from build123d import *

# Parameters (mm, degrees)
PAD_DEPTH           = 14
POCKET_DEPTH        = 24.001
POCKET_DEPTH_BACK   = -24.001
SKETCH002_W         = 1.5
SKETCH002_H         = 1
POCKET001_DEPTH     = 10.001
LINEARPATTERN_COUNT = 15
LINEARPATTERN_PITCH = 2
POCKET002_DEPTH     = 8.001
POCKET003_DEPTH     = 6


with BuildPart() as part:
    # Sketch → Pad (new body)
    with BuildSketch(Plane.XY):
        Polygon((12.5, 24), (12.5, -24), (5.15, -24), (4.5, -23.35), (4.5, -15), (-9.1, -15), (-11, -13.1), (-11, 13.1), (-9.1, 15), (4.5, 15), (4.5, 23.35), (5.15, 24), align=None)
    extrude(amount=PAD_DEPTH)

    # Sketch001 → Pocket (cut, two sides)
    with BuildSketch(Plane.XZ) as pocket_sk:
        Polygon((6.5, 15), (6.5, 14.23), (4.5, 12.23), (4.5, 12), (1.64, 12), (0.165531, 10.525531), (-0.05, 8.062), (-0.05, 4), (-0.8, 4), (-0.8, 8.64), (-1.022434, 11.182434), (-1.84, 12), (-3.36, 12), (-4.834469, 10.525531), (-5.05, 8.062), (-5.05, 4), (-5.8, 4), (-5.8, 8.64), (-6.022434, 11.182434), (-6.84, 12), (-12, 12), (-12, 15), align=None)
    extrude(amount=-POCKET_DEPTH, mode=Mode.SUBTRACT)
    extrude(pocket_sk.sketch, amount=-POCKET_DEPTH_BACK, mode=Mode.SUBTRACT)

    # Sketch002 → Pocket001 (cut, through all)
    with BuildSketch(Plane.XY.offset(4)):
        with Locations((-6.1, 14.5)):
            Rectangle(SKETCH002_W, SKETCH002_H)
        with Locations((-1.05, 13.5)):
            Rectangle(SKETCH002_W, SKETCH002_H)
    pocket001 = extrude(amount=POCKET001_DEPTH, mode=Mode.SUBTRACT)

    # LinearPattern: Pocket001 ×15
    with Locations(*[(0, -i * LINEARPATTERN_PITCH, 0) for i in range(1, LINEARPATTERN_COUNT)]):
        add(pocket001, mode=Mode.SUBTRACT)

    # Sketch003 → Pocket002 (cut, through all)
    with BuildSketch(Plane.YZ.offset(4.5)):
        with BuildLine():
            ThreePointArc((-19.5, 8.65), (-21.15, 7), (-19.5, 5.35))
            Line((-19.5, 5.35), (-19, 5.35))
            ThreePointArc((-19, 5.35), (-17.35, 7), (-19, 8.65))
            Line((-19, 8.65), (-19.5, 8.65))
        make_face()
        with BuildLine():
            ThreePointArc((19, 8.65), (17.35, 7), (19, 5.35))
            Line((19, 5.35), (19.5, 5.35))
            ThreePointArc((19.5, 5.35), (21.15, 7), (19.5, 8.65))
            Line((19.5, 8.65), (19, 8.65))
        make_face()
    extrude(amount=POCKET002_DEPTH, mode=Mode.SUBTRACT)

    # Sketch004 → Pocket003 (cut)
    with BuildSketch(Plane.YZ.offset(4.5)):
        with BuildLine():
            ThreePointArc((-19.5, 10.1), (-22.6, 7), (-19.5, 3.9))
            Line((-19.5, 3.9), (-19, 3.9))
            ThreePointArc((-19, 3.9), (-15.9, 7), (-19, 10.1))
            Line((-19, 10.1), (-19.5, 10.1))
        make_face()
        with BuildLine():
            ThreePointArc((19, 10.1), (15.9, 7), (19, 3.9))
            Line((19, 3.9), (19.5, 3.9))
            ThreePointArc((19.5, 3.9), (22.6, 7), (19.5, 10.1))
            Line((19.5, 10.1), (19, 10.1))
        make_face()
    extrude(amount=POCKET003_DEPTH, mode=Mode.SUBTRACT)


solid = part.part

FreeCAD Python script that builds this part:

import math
import FreeCAD as App
import Part
import Sketcher
from FreeCAD import Vector
Q = App.Units.Quantity

doc = App.newDocument("Part")
body = doc.addObject("PartDesign::Body", "Body")

# Sketch on XY plane
sketch1 = body.newObject("Sketcher::SketchObject", "Sketch")
sketch1.AttachmentSupport = (doc.getObject("XY_Plane"), [""])
sketch1.MapMode = "FlatFace"
sketch1.addGeometry([
    Part.LineSegment(Vector(12.5, -24, 0), Vector(12.5, 24, 0)),  # 0
    Part.LineSegment(Vector(12.5, 24, 0), Vector(5.2, 24, 0)),  # 1
    Part.LineSegment(Vector(5.2, 24, 0), Vector(4.5, 23.4, 0)),  # 2
    Part.LineSegment(Vector(4.5, 23.4, 0), Vector(4.5, 15, 0)),  # 3
    Part.LineSegment(Vector(4.5, 15, 0), Vector(-9.1, 15, 0)),  # 4
    Part.LineSegment(Vector(-9.1, 15, 0), Vector(-11, 13.1, 0)),  # 5
    Part.LineSegment(Vector(-11, 13.1, 0), Vector(-11, -13.1, 0)),  # 6
    Part.LineSegment(Vector(-11, -13.1, 0), Vector(-9.1, -15, 0)),  # 7
    Part.LineSegment(Vector(-9.1, -15, 0), Vector(4.5, -15, 0)),  # 8
    Part.LineSegment(Vector(4.5, -15, 0), Vector(4.5, -23.4, 0)),  # 9
    Part.LineSegment(Vector(4.5, -23.4, 0), Vector(5.2, -24, 0)),  # 10
    Part.LineSegment(Vector(5.2, -24, 0), Vector(12.5, -24, 0)),  # 11
], False)
sketch1.addConstraint([
    Sketcher.Constraint("Coincident", 0, 2, 1, 1),
    Sketcher.Constraint("Coincident", 1, 2, 2, 1),
    Sketcher.Constraint("Coincident", 2, 2, 3, 1),
    Sketcher.Constraint("Coincident", 3, 2, 4, 1),
    Sketcher.Constraint("Coincident", 4, 2, 5, 1),
    Sketcher.Constraint("Coincident", 5, 2, 6, 1),
    Sketcher.Constraint("Coincident", 6, 2, 7, 1),
    Sketcher.Constraint("Coincident", 7, 2, 8, 1),
    Sketcher.Constraint("Coincident", 8, 2, 9, 1),
    Sketcher.Constraint("Coincident", 9, 2, 10, 1),
    Sketcher.Constraint("Coincident", 10, 2, 11, 1),
    Sketcher.Constraint("Coincident", 11, 2, 0, 1),
    Sketcher.Constraint("Vertical", 0),
    Sketcher.Constraint("Horizontal", 1),
    Sketcher.Constraint("Vertical", 3),
    Sketcher.Constraint("Horizontal", 4),
    Sketcher.Constraint("Vertical", 6),
    Sketcher.Constraint("Horizontal", 8),
    Sketcher.Constraint("Vertical", 9),
    Sketcher.Constraint("Horizontal", 11),
    Sketcher.Constraint("Symmetric", 4, 2, 7, 2, -1),
    Sketcher.Constraint("Symmetric", 2, 2, 9, 2, -1),
    Sketcher.Constraint("Symmetric", 1, 2, 10, 2, -1),
    Sketcher.Constraint("Parallel", 2, 5),
    Sketcher.Constraint("Perpendicular", 5, 7),
    Sketcher.Constraint("Parallel", 7, 10),
    Sketcher.Constraint("DistanceY", 0, 1, 0, 2, 48.0),
    Sketcher.Constraint("DistanceX", 4, 2, 4, 1, 13.6),
    Sketcher.Constraint("DistanceY", 6, 2, 6, 1, 26.2),
    Sketcher.Constraint("DistanceY", -1, 1, 3, 2, 15.0),
    Sketcher.Constraint("DistanceX", 5, 2, -1, 1, 11.0),
    Sketcher.Constraint("DistanceX", 2, 2, 0, 2, 8.0),
    Sketcher.Constraint("DistanceX", 1, 2, 1, 1, 7.35),
])
pad1 = body.newObject("PartDesign::Pad", "Pad")
pad1.Profile = sketch1
pad1.Length = 14

# Sketch on XZ plane
sketch2 = body.newObject("Sketcher::SketchObject", "Sketch001")
sketch2.AttachmentSupport = (doc.getObject("XZ_Plane"), [""])
sketch2.MapMode = "FlatFace"
sketch2.addGeometry([
    Part.LineSegment(Vector(6.5, 14.23, 0), Vector(6.5, 15, 0)),  # 0
    Part.LineSegment(Vector(6.5, 15, 0), Vector(-12, 15, 0)),  # 1
    Part.LineSegment(Vector(-12, 15, 0), Vector(-12, 12, 0)),  # 2
    Part.LineSegment(Vector(-12, 12, 0), Vector(-6.84, 12, 0)),  # 3
    Part.LineSegment(Vector(-6.84, 12, 0), Vector(-6.02, 11.18, 0)),  # 4
    Part.LineSegment(Vector(-6.02, 11.18, 0), Vector(-5.8, 8.64, 0)),  # 5
    Part.LineSegment(Vector(-5.8, 8.64, 0), Vector(-5.8, 4, 0)),  # 6
    Part.LineSegment(Vector(-5.8, 4, 0), Vector(-5.05, 4, 0)),  # 7
    Part.LineSegment(Vector(-5.05, 4, 0), Vector(-5.05, 8.06, 0)),  # 8
    Part.LineSegment(Vector(-5.05, 8.06, 0), Vector(-4.83, 10.53, 0)),  # 9
    Part.LineSegment(Vector(-4.83, 10.53, 0), Vector(-3.36, 12, 0)),  # 10
    Part.LineSegment(Vector(-3.36, 12, 0), Vector(-1.84, 12, 0)),  # 11
    Part.LineSegment(Vector(-1.84, 12, 0), Vector(-1.02, 11.18, 0)),  # 12
    Part.LineSegment(Vector(-1.02, 11.18, 0), Vector(-0.8, 8.64, 0)),  # 13
    Part.LineSegment(Vector(-0.8, 8.64, 0), Vector(-0.8, 4, 0)),  # 14
    Part.LineSegment(Vector(-0.8, 4, 0), Vector(-0.05, 4, 0)),  # 15
    Part.LineSegment(Vector(-0.05, 4, 0), Vector(-0.05, 8.06, 0)),  # 16
    Part.LineSegment(Vector(-0.05, 8.06, 0), Vector(0.17, 10.53, 0)),  # 17
    Part.LineSegment(Vector(0.17, 10.53, 0), Vector(1.64, 12, 0)),  # 18
    Part.LineSegment(Vector(1.64, 12, 0), Vector(4.5, 12, 0)),  # 19
    Part.LineSegment(Vector(4.5, 12, 0), Vector(4.5, 12.23, 0)),  # 20
    Part.LineSegment(Vector(4.5, 12.23, 0), Vector(6.5, 14.23, 0)),  # 21
], False)
sketch2.addConstraint([
    Sketcher.Constraint("Coincident", 0, 2, 1, 1),
    Sketcher.Constraint("Coincident", 1, 2, 2, 1),
    Sketcher.Constraint("Coincident", 2, 2, 3, 1),
    Sketcher.Constraint("Coincident", 3, 2, 4, 1),
    Sketcher.Constraint("Coincident", 4, 2, 5, 1),
    Sketcher.Constraint("Coincident", 5, 2, 6, 1),
    Sketcher.Constraint("Coincident", 6, 2, 7, 1),
    Sketcher.Constraint("Coincident", 7, 2, 8, 1),
    Sketcher.Constraint("Coincident", 8, 2, 9, 1),
    Sketcher.Constraint("Coincident", 9, 2, 10, 1),
    Sketcher.Constraint("Coincident", 10, 2, 11, 1),
    Sketcher.Constraint("Coincident", 11, 2, 12, 1),
    Sketcher.Constraint("Coincident", 12, 2, 13, 1),
    Sketcher.Constraint("Coincident", 13, 2, 14, 1),
    Sketcher.Constraint("Coincident", 14, 2, 15, 1),
    Sketcher.Constraint("Coincident", 15, 2, 16, 1),
    Sketcher.Constraint("Coincident", 16, 2, 17, 1),
    Sketcher.Constraint("Coincident", 17, 2, 18, 1),
    Sketcher.Constraint("Coincident", 18, 2, 19, 1),
    Sketcher.Constraint("Coincident", 19, 2, 20, 1),
    Sketcher.Constraint("Coincident", 20, 2, 21, 1),
    Sketcher.Constraint("Coincident", 21, 2, 0, 1),
    Sketcher.Constraint("Vertical", 0),
    Sketcher.Constraint("Horizontal", 1),
    Sketcher.Constraint("Vertical", 2),
    Sketcher.Constraint("Horizontal", 3),
    Sketcher.Constraint("Vertical", 6),
    Sketcher.Constraint("Horizontal", 7),
    Sketcher.Constraint("Vertical", 8),
    Sketcher.Constraint("Horizontal", 11),
    Sketcher.Constraint("Vertical", 14),
    Sketcher.Constraint("Horizontal", 15),
    Sketcher.Constraint("Vertical", 16),
    Sketcher.Constraint("Horizontal", 19),
    Sketcher.Constraint("Vertical", 20),
    Sketcher.Constraint("Perpendicular", 4, 10),
    Sketcher.Constraint("Perpendicular", 10, 12),
    Sketcher.Constraint("Parallel", 5, 13),
    Sketcher.Constraint("Parallel", 9, 17),
    Sketcher.Constraint("Perpendicular", 12, 18),
    Sketcher.Constraint("Parallel", 18, 21),
    Sketcher.Constraint("Horizontal", 3, 2, 10, 2),
    Sketcher.Constraint("Horizontal", 4, 2, 12, 2),
    Sketcher.Constraint("Horizontal", 5, 2, 13, 2),
    Sketcher.Constraint("Horizontal", 7, 2, 14, 2),
    Sketcher.Constraint("Horizontal", 8, 2, 16, 2),
    Sketcher.Constraint("Horizontal", 9, 2, 17, 2),
    Sketcher.Constraint("Horizontal", 11, 2, 18, 2),
    Sketcher.Constraint("Equal", 7, 15),
    Sketcher.Constraint("DistanceY", 2, 2, 2, 1, 3.0),
    Sketcher.Constraint("Angle", 4, Q("-45 deg")),
    Sketcher.Constraint("Angle", 5, Q("-85.000003 deg")),
    Sketcher.Constraint("Angle", 9, Q("85.000001 deg")),
    Sketcher.Constraint("DistanceX", 1, 2, 1, 1, 18.5),
    Sketcher.Constraint("DistanceY", -1, 1, 0, 2, 15.0),
    Sketcher.Constraint("DistanceX", 1, 2, -1, 1, 12.0),
    Sketcher.Constraint("DistanceY", -1, 1, 6, 2, 4.0),
    Sketcher.Constraint("DistanceX", 3, 2, 11, 2, 5.0),
    Sketcher.Constraint("DistanceX", 19, 2, 0, 2, 2.0),
    Sketcher.Constraint("DistanceX", 3, 1, 3, 2, 5.16),
    Sketcher.Constraint("DistanceX", 7, 1, 7, 2, 0.75),
    Sketcher.Constraint("DistanceX", 11, 1, 11, 2, 1.52),
    Sketcher.Constraint("DistanceY", 0, 1, 0, 2, 0.77),
    Sketcher.Constraint("DistanceY", 6, 2, 6, 1, 4.64),
    Sketcher.Constraint("DistanceX", 5, 2, -1, 1, 5.8),
    Sketcher.Constraint("DistanceY", 8, 1, 8, 2, 4.062),
])
pocket1 = body.newObject("PartDesign::Pocket", "Pocket")
pocket1.Profile = sketch2
pocket1.Type = "ThroughAll"
pocket1.Midplane = True

# Sketch on XY plane
sketch3 = body.newObject("Sketcher::SketchObject", "Sketch002")
sketch3.AttachmentSupport = (doc.getObject("XY_Plane"), [""])
sketch3.MapMode = "FlatFace"
sketch3.AttachmentOffset = App.Placement(Vector(0, 0, 4), App.Rotation())
sketch3.addGeometry([
    Part.LineSegment(Vector(-6.8, 15, 0), Vector(-6.8, 14, 0)),  # 0
    Part.LineSegment(Vector(-6.8, 14, 0), Vector(-5.3, 14, 0)),  # 1
    Part.LineSegment(Vector(-5.3, 14, 0), Vector(-5.3, 15, 0)),  # 2
    Part.LineSegment(Vector(-5.3, 15, 0), Vector(-6.8, 15, 0)),  # 3
    Part.LineSegment(Vector(-1.8, 14, 0), Vector(-1.8, 13, 0)),  # 4
    Part.LineSegment(Vector(-1.8, 13, 0), Vector(-0.3, 13, 0)),  # 5
    Part.LineSegment(Vector(-0.3, 13, 0), Vector(-0.3, 14, 0)),  # 6
    Part.LineSegment(Vector(-0.3, 14, 0), Vector(-1.8, 14, 0)),  # 7
], False)
sketch3.addConstraint([
    Sketcher.Constraint("Coincident", 0, 2, 1, 1),
    Sketcher.Constraint("Coincident", 1, 2, 2, 1),
    Sketcher.Constraint("Coincident", 2, 2, 3, 1),
    Sketcher.Constraint("Coincident", 3, 2, 0, 1),
    Sketcher.Constraint("Coincident", 4, 2, 5, 1),
    Sketcher.Constraint("Coincident", 5, 2, 6, 1),
    Sketcher.Constraint("Coincident", 6, 2, 7, 1),
    Sketcher.Constraint("Coincident", 7, 2, 4, 1),
    Sketcher.Constraint("Vertical", 0),
    Sketcher.Constraint("Horizontal", 1),
    Sketcher.Constraint("Vertical", 2),
    Sketcher.Constraint("Horizontal", 3),
    Sketcher.Constraint("Vertical", 4),
    Sketcher.Constraint("Horizontal", 5),
    Sketcher.Constraint("Vertical", 6),
    Sketcher.Constraint("Horizontal", 7),
    Sketcher.Constraint("Horizontal", 1, 2, 6, 2),
    Sketcher.Constraint("Equal", 3, 5),
    Sketcher.Constraint("Equal", 2, 4),
    Sketcher.Constraint("DistanceY", 0, 2, 0, 1, 1.0),
    Sketcher.Constraint("DistanceX", 1, 1, 1, 2, 1.5),
    Sketcher.Constraint("DistanceY", -1, 1, 0, 2, 14.0),
    Sketcher.Constraint("DistanceX", 4, 2, -1, 1, 1.8),
    Sketcher.Constraint("DistanceX", 0, 2, -1, 1, 6.85),
])
pocket2 = body.newObject("PartDesign::Pocket", "Pocket001")
pocket2.Profile = sketch3
pocket2.Type = "ThroughAll"
pocket2.Reversed = True
doc.recompute()

linearpattern = body.newObject("PartDesign::LinearPattern", "LinearPattern")
linearpattern.Originals = [pocket2]
linearpattern.Direction = (doc.getObject("Y_Axis"), [""])
linearpattern.Mode = "offset"
linearpattern.Offset = 2
linearpattern.Occurrences = 15
linearpattern.Reversed = True
body.Tip = linearpattern

# Sketch on YZ plane
sketch4 = body.newObject("Sketcher::SketchObject", "Sketch003")
sketch4.AttachmentSupport = (doc.getObject("YZ_Plane"), [""])
sketch4.MapMode = "FlatFace"
sketch4.AttachmentOffset = App.Placement(Vector(0, 0, 4.5), App.Rotation())
sketch4.addGeometry([
    Part.ArcOfCircle(Part.Circle(Vector(-19.5, 7, 0), Vector(0, 0, 1), 1.6), math.radians(90), math.radians(270)),  # 0
    Part.LineSegment(Vector(-19.5, 5.3, 0), Vector(-19, 5.3, 0)),  # 1
    Part.ArcOfCircle(Part.Circle(Vector(-19, 7, 0), Vector(0, 0, 1), 1.6), math.radians(-90), math.radians(90)),  # 2
    Part.LineSegment(Vector(-19, 8.7, 0), Vector(-19.5, 8.7, 0)),  # 3
    Part.ArcOfCircle(Part.Circle(Vector(19, 7, 0), Vector(0, 0, 1), 1.6), math.radians(90), math.radians(270)),  # 4
    Part.LineSegment(Vector(19, 5.3, 0), Vector(19.5, 5.3, 0)),  # 5
    Part.ArcOfCircle(Part.Circle(Vector(19.5, 7, 0), Vector(0, 0, 1), 1.6), math.radians(-90), math.radians(90)),  # 6
    Part.LineSegment(Vector(19.5, 8.7, 0), Vector(19, 8.7, 0)),  # 7
], False)
sketch4.addConstraint([
    Sketcher.Constraint("Tangent", 0, 2, 1, 1),
    Sketcher.Constraint("Tangent", 1, 2, 2, 1),
    Sketcher.Constraint("Tangent", 2, 2, 3, 1),
    Sketcher.Constraint("Tangent", 3, 2, 0, 1),
    Sketcher.Constraint("Tangent", 4, 2, 5, 1),
    Sketcher.Constraint("Tangent", 5, 2, 6, 1),
    Sketcher.Constraint("Tangent", 6, 2, 7, 1),
    Sketcher.Constraint("Tangent", 7, 2, 4, 1),
    Sketcher.Constraint("Horizontal", 1),
    Sketcher.Constraint("Horizontal", 3),
    Sketcher.Constraint("Horizontal", 5),
    Sketcher.Constraint("Horizontal", 7),
    Sketcher.Constraint("Equal", 2, 4),
    Sketcher.Constraint("Symmetric", 2, 3, 4, 3, -2),
    Sketcher.Constraint("Equal", 3, 5),
    Sketcher.Constraint("Radius", 0, 1.65),
    Sketcher.Constraint("DistanceX", 1, 1, 1, 2, 0.5),
    Sketcher.Constraint("DistanceY", -1, 1, 0, 3, 7.0),
    Sketcher.Constraint("DistanceX", 2, 3, -1, 1, 19.0),
])
pocket3 = body.newObject("PartDesign::Pocket", "Pocket002")
pocket3.Profile = sketch4
pocket3.Type = "ThroughAll"
pocket3.Reversed = True

# Sketch on YZ plane
sketch5 = body.newObject("Sketcher::SketchObject", "Sketch004")
sketch5.AttachmentSupport = (doc.getObject("YZ_Plane"), [""])
sketch5.MapMode = "FlatFace"
sketch5.AttachmentOffset = App.Placement(Vector(0, 0, 4.5), App.Rotation())
sketch5.addGeometry([
    Part.ArcOfCircle(Part.Circle(Vector(-19.5, 7, 0), Vector(0, 0, 1), 3.1), math.radians(90), math.radians(270)),  # 0
    Part.LineSegment(Vector(-19.5, 3.9, 0), Vector(-19, 3.9, 0)),  # 1
    Part.ArcOfCircle(Part.Circle(Vector(-19, 7, 0), Vector(0, 0, 1), 3.1), math.radians(-90), math.radians(90)),  # 2
    Part.LineSegment(Vector(-19, 10.1, 0), Vector(-19.5, 10.1, 0)),  # 3
    Part.ArcOfCircle(Part.Circle(Vector(19, 7, 0), Vector(0, 0, 1), 3.1), math.radians(90), math.radians(270)),  # 4
    Part.LineSegment(Vector(19, 3.9, 0), Vector(19.5, 3.9, 0)),  # 5
    Part.ArcOfCircle(Part.Circle(Vector(19.5, 7, 0), Vector(0, 0, 1), 3.1), math.radians(-90), math.radians(90)),  # 6
    Part.LineSegment(Vector(19.5, 10.1, 0), Vector(19, 10.1, 0)),  # 7
], False)
sketch5.addConstraint([
    Sketcher.Constraint("Tangent", 0, 2, 1, 1),
    Sketcher.Constraint("Tangent", 1, 2, 2, 1),
    Sketcher.Constraint("Tangent", 2, 2, 3, 1),
    Sketcher.Constraint("Tangent", 3, 2, 0, 1),
    Sketcher.Constraint("Tangent", 4, 2, 5, 1),
    Sketcher.Constraint("Tangent", 5, 2, 6, 1),
    Sketcher.Constraint("Tangent", 6, 2, 7, 1),
    Sketcher.Constraint("Tangent", 7, 2, 4, 1),
    Sketcher.Constraint("Horizontal", 1),
    Sketcher.Constraint("Horizontal", 3),
    Sketcher.Constraint("Horizontal", 5),
    Sketcher.Constraint("Horizontal", 7),
    Sketcher.Constraint("Equal", 2, 4),
    Sketcher.Constraint("Symmetric", 2, 3, 4, 3, -2),
    Sketcher.Constraint("Equal", 3, 5),
    Sketcher.Constraint("Radius", 0, 3.1),
    Sketcher.Constraint("DistanceX", 1, 1, 1, 2, 0.5),
    Sketcher.Constraint("DistanceY", -1, 1, 0, 3, 7.0),
    Sketcher.Constraint("DistanceX", 2, 3, -1, 1, 19.0),
])
pocket4 = body.newObject("PartDesign::Pocket", "Pocket003")
pocket4.Profile = sketch5
pocket4.Length = 6
pocket4.Reversed = True

doc.recompute()
